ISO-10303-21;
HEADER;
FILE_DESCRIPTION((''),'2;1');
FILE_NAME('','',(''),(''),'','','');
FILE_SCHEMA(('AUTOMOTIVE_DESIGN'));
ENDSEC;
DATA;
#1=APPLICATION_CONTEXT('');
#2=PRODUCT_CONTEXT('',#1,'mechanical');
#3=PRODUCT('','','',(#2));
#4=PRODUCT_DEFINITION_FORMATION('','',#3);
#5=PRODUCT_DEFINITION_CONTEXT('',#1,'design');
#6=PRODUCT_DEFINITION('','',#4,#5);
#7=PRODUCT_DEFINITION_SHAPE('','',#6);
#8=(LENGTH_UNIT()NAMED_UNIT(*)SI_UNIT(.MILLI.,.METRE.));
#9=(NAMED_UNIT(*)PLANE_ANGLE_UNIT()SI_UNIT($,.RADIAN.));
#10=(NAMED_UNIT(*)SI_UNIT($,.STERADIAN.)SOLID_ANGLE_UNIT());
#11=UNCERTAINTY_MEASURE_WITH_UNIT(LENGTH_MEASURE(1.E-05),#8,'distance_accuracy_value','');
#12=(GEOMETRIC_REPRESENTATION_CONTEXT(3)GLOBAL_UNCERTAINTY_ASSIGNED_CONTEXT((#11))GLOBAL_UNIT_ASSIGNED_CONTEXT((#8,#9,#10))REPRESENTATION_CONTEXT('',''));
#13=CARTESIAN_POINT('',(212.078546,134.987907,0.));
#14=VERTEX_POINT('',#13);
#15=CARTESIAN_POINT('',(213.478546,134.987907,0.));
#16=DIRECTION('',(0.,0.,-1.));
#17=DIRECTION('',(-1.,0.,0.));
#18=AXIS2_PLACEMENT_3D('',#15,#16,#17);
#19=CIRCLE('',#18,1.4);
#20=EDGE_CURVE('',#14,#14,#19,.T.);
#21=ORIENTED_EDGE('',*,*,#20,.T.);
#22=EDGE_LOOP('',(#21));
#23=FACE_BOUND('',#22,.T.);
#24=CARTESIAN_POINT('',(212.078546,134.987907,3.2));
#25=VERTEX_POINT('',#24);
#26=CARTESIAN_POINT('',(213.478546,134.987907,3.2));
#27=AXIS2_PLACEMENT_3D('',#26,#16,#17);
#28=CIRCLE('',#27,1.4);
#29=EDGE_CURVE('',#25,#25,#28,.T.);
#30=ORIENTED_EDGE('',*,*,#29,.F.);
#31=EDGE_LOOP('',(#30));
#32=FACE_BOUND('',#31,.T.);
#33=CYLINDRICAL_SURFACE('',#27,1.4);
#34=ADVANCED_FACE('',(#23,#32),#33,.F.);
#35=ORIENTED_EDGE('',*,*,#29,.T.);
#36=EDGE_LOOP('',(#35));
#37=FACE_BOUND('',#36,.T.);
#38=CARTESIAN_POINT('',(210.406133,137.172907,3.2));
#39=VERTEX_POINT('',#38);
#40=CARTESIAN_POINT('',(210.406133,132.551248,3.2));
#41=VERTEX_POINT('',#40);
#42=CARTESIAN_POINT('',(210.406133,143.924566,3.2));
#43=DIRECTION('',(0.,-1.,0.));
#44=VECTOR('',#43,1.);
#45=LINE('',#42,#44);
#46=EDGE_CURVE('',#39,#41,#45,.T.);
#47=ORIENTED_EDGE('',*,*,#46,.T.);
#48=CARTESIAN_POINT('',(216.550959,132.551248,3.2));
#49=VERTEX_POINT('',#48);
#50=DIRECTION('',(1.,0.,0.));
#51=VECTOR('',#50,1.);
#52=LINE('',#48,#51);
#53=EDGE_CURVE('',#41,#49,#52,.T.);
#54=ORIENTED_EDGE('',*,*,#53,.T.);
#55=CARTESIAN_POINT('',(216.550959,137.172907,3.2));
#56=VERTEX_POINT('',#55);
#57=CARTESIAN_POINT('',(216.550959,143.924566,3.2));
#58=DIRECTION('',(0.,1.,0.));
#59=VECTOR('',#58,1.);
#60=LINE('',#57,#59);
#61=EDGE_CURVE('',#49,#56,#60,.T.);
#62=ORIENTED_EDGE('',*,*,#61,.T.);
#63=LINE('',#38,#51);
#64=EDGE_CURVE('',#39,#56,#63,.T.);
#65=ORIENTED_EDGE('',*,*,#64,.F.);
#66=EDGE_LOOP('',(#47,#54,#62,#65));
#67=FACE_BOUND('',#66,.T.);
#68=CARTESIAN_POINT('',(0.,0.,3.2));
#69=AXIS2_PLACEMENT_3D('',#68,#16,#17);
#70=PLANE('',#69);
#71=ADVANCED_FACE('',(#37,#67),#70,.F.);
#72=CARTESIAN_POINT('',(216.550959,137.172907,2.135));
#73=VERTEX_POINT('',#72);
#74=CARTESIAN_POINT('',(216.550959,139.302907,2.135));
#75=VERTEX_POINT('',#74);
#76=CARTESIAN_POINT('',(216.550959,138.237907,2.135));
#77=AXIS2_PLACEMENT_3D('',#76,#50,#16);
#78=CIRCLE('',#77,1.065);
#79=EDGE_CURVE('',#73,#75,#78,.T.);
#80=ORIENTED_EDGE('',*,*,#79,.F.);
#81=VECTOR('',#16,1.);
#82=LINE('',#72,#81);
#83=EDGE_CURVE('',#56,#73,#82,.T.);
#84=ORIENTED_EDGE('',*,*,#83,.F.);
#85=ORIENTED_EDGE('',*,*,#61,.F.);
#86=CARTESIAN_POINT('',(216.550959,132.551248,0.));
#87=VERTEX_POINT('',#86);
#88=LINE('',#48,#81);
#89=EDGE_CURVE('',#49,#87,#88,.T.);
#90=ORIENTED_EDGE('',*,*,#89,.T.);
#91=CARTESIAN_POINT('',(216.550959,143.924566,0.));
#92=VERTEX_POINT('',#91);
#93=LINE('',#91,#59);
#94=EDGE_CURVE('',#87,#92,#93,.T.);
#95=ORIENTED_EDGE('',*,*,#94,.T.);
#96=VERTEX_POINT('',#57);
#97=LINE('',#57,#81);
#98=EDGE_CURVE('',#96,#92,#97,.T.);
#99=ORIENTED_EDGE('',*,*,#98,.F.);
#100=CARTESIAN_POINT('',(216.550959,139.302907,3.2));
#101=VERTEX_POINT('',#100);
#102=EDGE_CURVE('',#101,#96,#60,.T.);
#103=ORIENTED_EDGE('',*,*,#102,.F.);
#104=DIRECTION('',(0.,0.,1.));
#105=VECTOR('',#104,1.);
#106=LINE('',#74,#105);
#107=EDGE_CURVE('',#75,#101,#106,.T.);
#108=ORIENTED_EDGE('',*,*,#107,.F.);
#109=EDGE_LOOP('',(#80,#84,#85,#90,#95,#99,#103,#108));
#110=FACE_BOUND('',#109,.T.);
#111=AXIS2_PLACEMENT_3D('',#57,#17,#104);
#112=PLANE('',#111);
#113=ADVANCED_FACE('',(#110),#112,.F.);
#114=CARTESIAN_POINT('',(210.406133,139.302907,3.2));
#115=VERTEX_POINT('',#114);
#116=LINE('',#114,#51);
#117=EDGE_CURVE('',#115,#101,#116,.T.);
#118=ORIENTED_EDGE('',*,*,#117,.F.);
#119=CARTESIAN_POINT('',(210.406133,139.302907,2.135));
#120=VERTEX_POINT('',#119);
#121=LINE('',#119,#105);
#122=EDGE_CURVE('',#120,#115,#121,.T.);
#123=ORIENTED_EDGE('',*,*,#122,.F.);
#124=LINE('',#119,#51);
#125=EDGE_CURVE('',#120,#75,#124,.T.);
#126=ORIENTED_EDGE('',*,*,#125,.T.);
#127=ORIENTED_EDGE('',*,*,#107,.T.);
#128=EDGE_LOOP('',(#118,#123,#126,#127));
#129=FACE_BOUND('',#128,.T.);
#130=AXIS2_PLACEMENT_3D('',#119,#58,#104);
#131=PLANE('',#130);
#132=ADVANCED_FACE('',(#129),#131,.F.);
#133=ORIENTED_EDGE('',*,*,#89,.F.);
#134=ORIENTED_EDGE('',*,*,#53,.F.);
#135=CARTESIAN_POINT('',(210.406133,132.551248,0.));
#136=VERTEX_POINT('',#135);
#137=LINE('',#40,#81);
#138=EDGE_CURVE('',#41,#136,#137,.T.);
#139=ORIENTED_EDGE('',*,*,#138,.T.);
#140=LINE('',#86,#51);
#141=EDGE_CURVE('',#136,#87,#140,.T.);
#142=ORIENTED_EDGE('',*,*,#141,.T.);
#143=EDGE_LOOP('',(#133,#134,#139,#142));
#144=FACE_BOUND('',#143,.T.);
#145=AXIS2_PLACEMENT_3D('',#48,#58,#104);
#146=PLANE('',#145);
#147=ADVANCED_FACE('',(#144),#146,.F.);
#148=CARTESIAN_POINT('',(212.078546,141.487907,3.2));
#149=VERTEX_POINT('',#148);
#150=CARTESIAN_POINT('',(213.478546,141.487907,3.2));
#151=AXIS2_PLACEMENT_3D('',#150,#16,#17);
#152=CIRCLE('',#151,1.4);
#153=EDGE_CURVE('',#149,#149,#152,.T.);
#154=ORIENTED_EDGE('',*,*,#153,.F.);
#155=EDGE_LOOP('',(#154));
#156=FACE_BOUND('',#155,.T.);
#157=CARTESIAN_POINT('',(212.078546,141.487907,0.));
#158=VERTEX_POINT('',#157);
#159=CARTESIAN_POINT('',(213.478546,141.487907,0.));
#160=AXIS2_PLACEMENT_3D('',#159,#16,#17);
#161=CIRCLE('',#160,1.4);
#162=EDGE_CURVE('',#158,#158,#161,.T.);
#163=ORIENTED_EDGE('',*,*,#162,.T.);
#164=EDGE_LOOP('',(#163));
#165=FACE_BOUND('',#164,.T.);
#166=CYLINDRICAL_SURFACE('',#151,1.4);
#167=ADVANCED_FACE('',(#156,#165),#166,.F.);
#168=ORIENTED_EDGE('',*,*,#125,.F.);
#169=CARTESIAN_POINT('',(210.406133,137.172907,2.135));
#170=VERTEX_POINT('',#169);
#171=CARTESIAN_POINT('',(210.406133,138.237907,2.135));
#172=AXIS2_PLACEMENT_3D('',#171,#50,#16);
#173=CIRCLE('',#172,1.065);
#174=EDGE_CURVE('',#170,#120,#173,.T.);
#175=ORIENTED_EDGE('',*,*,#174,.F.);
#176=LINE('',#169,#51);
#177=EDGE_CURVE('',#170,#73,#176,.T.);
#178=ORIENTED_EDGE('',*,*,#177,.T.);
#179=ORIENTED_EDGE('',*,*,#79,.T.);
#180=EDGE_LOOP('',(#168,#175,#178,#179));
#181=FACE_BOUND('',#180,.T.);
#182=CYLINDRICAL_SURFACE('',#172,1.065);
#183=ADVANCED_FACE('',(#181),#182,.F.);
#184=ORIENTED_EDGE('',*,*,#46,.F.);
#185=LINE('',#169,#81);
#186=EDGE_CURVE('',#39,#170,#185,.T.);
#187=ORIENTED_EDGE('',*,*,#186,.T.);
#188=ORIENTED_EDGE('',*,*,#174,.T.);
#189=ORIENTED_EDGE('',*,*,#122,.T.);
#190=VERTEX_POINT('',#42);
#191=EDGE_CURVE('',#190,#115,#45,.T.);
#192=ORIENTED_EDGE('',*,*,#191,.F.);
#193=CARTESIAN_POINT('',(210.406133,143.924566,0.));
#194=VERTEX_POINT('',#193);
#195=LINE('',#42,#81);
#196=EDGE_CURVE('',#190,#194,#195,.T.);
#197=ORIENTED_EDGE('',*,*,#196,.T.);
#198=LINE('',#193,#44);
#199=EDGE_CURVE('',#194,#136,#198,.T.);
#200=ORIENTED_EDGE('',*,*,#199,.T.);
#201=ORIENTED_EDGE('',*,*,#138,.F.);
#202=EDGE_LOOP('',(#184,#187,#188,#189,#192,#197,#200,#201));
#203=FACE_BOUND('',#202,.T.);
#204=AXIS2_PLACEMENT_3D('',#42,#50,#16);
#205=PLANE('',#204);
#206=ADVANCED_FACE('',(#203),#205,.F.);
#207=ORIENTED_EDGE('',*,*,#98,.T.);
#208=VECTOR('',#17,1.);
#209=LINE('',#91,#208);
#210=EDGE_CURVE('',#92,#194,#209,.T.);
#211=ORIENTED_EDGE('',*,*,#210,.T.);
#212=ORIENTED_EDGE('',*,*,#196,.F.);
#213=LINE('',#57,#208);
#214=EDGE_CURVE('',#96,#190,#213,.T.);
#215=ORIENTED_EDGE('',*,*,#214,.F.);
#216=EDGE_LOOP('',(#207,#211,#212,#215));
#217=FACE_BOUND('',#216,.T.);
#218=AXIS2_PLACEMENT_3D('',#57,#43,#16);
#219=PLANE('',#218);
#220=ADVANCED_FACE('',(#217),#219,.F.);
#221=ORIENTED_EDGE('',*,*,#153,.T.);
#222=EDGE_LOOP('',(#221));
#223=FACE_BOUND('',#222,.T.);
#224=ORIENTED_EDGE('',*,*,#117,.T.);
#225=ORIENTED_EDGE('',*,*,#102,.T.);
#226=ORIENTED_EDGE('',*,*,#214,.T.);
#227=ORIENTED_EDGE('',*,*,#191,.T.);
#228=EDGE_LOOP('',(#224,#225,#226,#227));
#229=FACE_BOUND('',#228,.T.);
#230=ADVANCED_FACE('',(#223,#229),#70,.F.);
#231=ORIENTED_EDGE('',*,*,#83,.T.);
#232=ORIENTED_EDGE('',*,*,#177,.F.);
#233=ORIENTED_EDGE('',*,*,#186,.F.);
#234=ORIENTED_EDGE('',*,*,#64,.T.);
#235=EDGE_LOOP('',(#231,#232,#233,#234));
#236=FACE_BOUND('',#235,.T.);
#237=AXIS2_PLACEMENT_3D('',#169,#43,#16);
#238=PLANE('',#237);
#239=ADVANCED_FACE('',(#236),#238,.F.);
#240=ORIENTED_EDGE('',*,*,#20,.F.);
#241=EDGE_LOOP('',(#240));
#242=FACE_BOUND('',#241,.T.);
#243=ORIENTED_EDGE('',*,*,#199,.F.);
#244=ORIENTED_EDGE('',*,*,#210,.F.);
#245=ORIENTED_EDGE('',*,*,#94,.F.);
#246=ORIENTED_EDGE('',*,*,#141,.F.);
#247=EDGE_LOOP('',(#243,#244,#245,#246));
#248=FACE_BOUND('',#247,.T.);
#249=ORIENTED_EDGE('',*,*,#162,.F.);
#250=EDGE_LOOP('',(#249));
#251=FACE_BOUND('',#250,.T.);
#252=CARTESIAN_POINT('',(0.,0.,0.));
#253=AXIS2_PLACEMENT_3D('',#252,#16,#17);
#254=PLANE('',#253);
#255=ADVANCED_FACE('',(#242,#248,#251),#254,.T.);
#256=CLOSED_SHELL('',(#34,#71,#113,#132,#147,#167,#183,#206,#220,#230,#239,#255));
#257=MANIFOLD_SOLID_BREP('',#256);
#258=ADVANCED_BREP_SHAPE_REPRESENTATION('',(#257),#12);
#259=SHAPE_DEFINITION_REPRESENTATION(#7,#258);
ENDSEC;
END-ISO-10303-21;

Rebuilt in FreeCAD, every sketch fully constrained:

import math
import FreeCAD as App
import Part
import Sketcher

V = App.Vector
Q = App.Units.Quantity

doc = App.newDocument("Part")
body = doc.addObject("PartDesign::Body", "Body")

# Sketch on XY plane
sketch1 = doc.addObject("Sketcher::SketchObject", "Sketch")
body.addObject(sketch1)
sketch1.AttachmentSupport = (doc.XY_Plane, [""])
sketch1.MapMode = "FlatFace"
sketch1.addGeometry([
    Part.LineSegment(V(210.406133, 143.924566, 0), V(210.406133, 132.551248, 0)),
    Part.LineSegment(V(210.406133, 132.551248, 0), V(216.550959, 132.551248, 0)),
    Part.LineSegment(V(216.550959, 132.551248, 0), V(216.550959, 143.924566, 0)),
    Part.LineSegment(V(216.550959, 143.924566, 0), V(210.406133, 143.924566, 0)),
], False)
sketch1.addConstraint([
    Sketcher.Constraint("Coincident", 0, 2, 1, 1),
    Sketcher.Constraint("Coincident", 1, 2, 2, 1),
    Sketcher.Constraint("Coincident", 2, 2, 3, 1),
    Sketcher.Constraint("Coincident", 3, 2, 0, 1),
    Sketcher.Constraint("Vertical", 0),
    Sketcher.Constraint("Horizontal", 1),
    Sketcher.Constraint("Vertical", 2),
    Sketcher.Constraint("Horizontal", 3),
    Sketcher.Constraint("DistanceY", 0, 2, 0, 1, Q("11.373319 mm")),
    Sketcher.Constraint("DistanceX", 1, 1, 1, 2, Q("6.144826 mm")),
    Sketcher.Constraint("DistanceX", -1, 1, 1, 2, Q("216.550959 mm")),
    Sketcher.Constraint("DistanceY", -1, 1, 0, 2, Q("132.551248 mm")),
])
pad1 = doc.addObject("PartDesign::Pad", "Pad")
body.addObject(pad1)
pad1.Profile = sketch1
pad1.Length = 3.2

# Sketch on XY plane
sketch2 = doc.addObject("Sketcher::SketchObject", "Sketch001")
body.addObject(sketch2)
sketch2.AttachmentSupport = (doc.XY_Plane, [""])
sketch2.MapMode = "FlatFace"
sketch2.addGeometry([
    Part.Circle(V(213.478546, 141.487907, 0), V(0, 0, 1), 1.4),
    Part.Circle(V(213.478546, 134.987907, 0), V(0, 0, 1), 1.4),
], False)
sketch2.addConstraint([
    Sketcher.Constraint("Equal", 0, 1),
    Sketcher.Constraint("Vertical", 0, 3, 1, 3),
    Sketcher.Constraint("Diameter", 0, Q("2.8 mm")),
    Sketcher.Constraint("DistanceY", 1, 3, 0, 3, Q("6.5 mm")),
    Sketcher.Constraint("DistanceX", -1, 1, 0, 3, Q("213.478546 mm")),
    Sketcher.Constraint("DistanceY", -1, 1, 0, 3, Q("141.487907 mm")),
])
pocket1 = doc.addObject("PartDesign::Pocket", "Pocket")
body.addObject(pocket1)
pocket1.Profile = sketch2
pocket1.Type = "ThroughAll"
pocket1.Reversed = True

# Sketch on YZ plane
sketch3 = doc.addObject("Sketcher::SketchObject", "Sketch002")
body.addObject(sketch3)
sketch3.AttachmentSupport = (doc.YZ_Plane, [""])
sketch3.MapMode = "FlatFace"
sketch3.AttachmentOffset = App.Placement(V(0, 0, 216.550959), App.Rotation())
sketch3.addGeometry([
    Part.LineSegment(V(137.172907, 3.2, 0), V(137.172907, 2.135, 0)),
    Part.ArcOfCircle(Part.Circle(V(138.237907, 2.135, 0), V(0, 0, 1), 1.065), math.radians(180), math.radians(360)),
    Part.LineSegment(V(139.302907, 2.135, 0), V(139.302907, 3.2, 0)),
    Part.LineSegment(V(139.302907, 3.2, 0), V(137.172907, 3.2, 0)),
], False)
sketch3.addConstraint([
    Sketcher.Constraint("Tangent", 0, 2, 1, 1),
    Sketcher.Constraint("Tangent", 1, 2, 2, 1),
    Sketcher.Constraint("Coincident", 2, 2, 3, 1),
    Sketcher.Constraint("Coincident", 3, 2, 0, 1),
    Sketcher.Constraint("Vertical", 0),
    Sketcher.Constraint("Vertical", 2),
    Sketcher.Constraint("Horizontal", 3),
    Sketcher.Constraint("Radius", 1, Q("1.065 mm")),
    Sketcher.Constraint("DistanceY", -1, 1, 2, 2, Q("3.2 mm")),
    Sketcher.Constraint("DistanceY", 0, 2, 0, 1, Q("1.065 mm")),
    Sketcher.Constraint("DistanceX", -1, 1, 1, 3, Q("138.237907 mm")),
])
pocket2 = doc.addObject("PartDesign::Pocket", "Pocket001")
body.addObject(pocket2)
pocket2.Profile = sketch3
pocket2.Type = "ThroughAll"

doc.recompute()
